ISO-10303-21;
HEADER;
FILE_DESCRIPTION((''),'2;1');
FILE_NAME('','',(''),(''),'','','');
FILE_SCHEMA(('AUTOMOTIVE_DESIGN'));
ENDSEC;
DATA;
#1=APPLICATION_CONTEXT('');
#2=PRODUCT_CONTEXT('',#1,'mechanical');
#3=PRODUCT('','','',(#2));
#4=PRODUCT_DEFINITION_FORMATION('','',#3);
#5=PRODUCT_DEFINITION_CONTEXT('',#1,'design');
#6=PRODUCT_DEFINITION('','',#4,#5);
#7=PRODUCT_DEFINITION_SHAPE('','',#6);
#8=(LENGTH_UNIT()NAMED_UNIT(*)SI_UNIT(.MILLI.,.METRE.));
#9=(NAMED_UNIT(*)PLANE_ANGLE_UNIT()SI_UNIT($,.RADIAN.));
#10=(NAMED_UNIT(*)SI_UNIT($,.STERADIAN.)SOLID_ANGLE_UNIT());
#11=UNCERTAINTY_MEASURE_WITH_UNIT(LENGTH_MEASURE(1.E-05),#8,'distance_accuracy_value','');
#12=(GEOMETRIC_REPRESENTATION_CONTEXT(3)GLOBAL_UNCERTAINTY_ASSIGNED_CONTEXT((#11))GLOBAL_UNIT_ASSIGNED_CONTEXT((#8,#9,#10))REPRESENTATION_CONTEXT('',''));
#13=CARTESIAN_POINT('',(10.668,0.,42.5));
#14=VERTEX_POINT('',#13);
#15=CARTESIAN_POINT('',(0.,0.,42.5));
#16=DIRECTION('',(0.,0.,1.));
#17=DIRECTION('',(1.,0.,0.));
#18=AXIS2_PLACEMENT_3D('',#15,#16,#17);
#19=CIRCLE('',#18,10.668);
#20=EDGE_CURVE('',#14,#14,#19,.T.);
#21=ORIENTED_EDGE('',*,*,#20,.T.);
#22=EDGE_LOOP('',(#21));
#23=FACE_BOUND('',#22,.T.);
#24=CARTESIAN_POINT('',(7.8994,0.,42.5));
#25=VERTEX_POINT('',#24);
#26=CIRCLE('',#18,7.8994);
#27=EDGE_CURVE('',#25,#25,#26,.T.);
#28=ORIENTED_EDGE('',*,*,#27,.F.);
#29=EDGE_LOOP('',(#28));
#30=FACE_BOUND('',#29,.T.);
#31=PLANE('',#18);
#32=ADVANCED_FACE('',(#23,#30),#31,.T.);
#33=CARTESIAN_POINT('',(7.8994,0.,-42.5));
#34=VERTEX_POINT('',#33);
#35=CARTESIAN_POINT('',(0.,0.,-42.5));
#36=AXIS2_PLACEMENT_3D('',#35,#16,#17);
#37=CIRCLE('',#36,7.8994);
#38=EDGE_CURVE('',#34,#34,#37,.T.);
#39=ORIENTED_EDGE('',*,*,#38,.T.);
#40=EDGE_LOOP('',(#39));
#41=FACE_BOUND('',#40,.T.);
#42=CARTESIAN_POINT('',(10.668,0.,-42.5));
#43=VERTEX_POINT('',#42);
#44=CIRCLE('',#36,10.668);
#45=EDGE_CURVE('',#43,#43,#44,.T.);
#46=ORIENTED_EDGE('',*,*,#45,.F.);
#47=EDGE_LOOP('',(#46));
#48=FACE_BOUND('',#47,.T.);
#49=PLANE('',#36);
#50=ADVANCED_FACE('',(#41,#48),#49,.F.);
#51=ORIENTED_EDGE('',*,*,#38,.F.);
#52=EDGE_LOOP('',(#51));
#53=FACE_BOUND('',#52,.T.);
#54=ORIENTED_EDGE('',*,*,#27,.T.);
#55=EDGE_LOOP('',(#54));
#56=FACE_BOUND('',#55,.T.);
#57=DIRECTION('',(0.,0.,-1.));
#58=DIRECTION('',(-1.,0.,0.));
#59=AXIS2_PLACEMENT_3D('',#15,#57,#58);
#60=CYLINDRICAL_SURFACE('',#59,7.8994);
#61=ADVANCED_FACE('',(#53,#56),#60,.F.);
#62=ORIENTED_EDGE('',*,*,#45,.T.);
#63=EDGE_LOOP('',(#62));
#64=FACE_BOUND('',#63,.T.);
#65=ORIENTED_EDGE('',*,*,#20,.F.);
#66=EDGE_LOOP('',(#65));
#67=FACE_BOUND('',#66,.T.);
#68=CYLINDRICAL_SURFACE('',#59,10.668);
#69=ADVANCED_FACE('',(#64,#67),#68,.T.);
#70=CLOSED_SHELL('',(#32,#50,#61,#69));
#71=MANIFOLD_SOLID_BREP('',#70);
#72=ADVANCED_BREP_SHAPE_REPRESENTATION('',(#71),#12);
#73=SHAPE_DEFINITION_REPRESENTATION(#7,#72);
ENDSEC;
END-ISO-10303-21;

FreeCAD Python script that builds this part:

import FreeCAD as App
import Part
import Sketcher
from FreeCAD import Vector
Q = App.Units.Quantity

doc = App.newDocument("Part")
body = doc.addObject("PartDesign::Body", "Body")

# Sketch on XY plane
sketch1 = doc.addObject("Sketcher::SketchObject", "Sketch")
body.addObject(sketch1)
sketch1.AttachmentSupport = (doc.XY_Plane, [""])
sketch1.MapMode = "FlatFace"
sketch1.addGeometry([
    Part.Circle(Vector(0, 0, 0), Vector(0, 0, 1), 11),
    Part.Circle(Vector(0, 0, 0), Vector(0, 0, 1), 8),
], False)
sketch1.addConstraint([
    Sketcher.Constraint("Coincident", 0, 3, -1, 1),
    Sketcher.Constraint("Coincident", 1, 3, -1, 1),
    Sketcher.Constraint("Diameter", 0, Q("0.84 in")),
    Sketcher.Constraint("Diameter", 1, Q("0.622 in")),
])
pad1 = doc.addObject("PartDesign::Pad", "Pad")
body.addObject(pad1)
pad1.Profile = sketch1
pad1.Length = 85
pad1.Midplane = True

doc.recompute()
